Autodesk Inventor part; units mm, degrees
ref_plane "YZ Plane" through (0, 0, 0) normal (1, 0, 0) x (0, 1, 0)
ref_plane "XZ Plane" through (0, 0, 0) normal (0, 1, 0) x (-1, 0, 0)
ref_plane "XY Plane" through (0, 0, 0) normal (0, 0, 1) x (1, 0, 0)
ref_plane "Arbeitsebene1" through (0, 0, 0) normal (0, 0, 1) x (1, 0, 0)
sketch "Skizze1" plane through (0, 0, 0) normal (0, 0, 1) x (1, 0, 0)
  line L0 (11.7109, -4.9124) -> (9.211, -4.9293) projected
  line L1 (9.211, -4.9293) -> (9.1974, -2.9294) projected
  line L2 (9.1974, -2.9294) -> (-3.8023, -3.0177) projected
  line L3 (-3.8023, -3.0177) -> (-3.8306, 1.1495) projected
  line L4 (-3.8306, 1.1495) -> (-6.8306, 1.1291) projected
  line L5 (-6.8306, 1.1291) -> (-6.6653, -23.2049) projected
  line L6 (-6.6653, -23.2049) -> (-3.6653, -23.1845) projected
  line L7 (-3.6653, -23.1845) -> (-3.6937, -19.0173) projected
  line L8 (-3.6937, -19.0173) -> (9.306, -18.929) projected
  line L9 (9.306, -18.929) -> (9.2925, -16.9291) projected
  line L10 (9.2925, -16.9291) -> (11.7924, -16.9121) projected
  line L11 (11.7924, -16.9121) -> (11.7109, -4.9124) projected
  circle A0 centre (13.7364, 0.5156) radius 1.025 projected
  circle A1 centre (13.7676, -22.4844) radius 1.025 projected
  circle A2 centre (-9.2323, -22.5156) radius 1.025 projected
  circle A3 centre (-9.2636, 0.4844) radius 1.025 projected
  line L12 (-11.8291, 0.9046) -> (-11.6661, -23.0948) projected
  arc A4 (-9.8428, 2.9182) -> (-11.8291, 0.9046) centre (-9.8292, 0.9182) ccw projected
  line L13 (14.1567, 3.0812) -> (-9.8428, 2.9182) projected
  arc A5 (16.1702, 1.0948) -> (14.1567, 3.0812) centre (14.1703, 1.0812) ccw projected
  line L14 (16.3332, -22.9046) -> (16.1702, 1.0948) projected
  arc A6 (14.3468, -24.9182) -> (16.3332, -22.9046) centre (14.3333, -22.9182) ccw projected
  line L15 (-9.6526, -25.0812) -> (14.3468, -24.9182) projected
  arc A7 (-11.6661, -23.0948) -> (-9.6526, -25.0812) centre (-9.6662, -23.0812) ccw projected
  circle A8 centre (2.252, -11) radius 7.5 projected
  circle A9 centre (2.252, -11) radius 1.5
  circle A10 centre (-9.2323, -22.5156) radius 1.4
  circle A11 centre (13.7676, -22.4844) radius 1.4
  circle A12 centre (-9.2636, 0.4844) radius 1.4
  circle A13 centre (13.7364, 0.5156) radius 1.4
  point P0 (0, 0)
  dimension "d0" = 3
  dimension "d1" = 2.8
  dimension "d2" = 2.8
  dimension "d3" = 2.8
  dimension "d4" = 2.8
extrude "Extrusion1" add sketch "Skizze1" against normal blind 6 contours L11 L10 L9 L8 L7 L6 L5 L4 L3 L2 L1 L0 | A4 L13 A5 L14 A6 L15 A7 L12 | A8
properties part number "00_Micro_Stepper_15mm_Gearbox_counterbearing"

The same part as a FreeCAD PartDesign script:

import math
import FreeCAD as App
import Part
import Sketcher
Q = App.Units.Quantity

doc = App.newDocument("Part")
body = doc.addObject("PartDesign::Body", "Body")

sketch1 = body.newObject("Sketcher::SketchObject", "Sketch")
sketch1.AttachmentSupport = (doc.getObject("XY_Plane"), [""])
sketch1.MapMode = "FlatFace"
sketch1.addGeometry(Part.ArcOfCircle(Part.Circle(App.Vector(-9.8, 0.9, 0), App.Vector(0, 0, 1), 2), math.radians(90), math.radians(180)), False)
sketch1.addGeometry(Part.LineSegment(App.Vector(-11.8, 0.9, 0), App.Vector(-11.7, -23.1, 0)), False)
sketch1.addGeometry(Part.ArcOfCircle(Part.Circle(App.Vector(-9.7, -23.1, 0), App.Vector(0, 0, 1), 2), math.radians(-180), math.radians(-90)), False)
sketch1.addGeometry(Part.LineSegment(App.Vector(-9.7, -25.1, 0), App.Vector(14.3, -24.9, 0)), False)
sketch1.addGeometry(Part.ArcOfCircle(Part.Circle(App.Vector(14.3, -22.9, 0), App.Vector(0, 0, 1), 2), math.radians(-90), math.radians(0)), False)
sketch1.addGeometry(Part.LineSegment(App.Vector(16.3, -22.9, 0), App.Vector(16.2, 1.1, 0)), False)
sketch1.addGeometry(Part.ArcOfCircle(Part.Circle(App.Vector(14.2, 1.1, 0), App.Vector(0, 0, 1), 2), math.radians(0), math.radians(90)), False)
sketch1.addGeometry(Part.LineSegment(App.Vector(14.2, 3.1, 0), App.Vector(-9.8, 2.9, 0)), False)
sketch1.addGeometry(Part.Circle(App.Vector(-9.2, -22.5, 0), App.Vector(0, 0, 1), 1.4), False)
sketch1.addGeometry(Part.Circle(App.Vector(13.8, -22.5, 0), App.Vector(0, 0, 1), 1.4), False)
sketch1.addGeometry(Part.Circle(App.Vector(-9.3, 0.5, 0), App.Vector(0, 0, 1), 1.4), False)
sketch1.addGeometry(Part.Circle(App.Vector(13.7, 0.5, 0), App.Vector(0, 0, 1), 1.4), False)
sketch1.addGeometry(Part.Circle(App.Vector(2.3, -11, 0), App.Vector(0, 0, 1), 1.5), False)
sketch1.addConstraint(Sketcher.Constraint("Tangent", 0, 2, 1, 1))
sketch1.addConstraint(Sketcher.Constraint("Tangent", 1, 2, 2, 1))
sketch1.addConstraint(Sketcher.Constraint("Tangent", 2, 2, 3, 1))
sketch1.addConstraint(Sketcher.Constraint("Tangent", 3, 2, 4, 1))
sketch1.addConstraint(Sketcher.Constraint("Tangent", 4, 2, 5, 1))
sketch1.addConstraint(Sketcher.Constraint("Tangent", 5, 2, 6, 1))
sketch1.addConstraint(Sketcher.Constraint("Tangent", 6, 2, 7, 1))
sketch1.addConstraint(Sketcher.Constraint("Tangent", 7, 2, 0, 1))
sketch1.addConstraint(Sketcher.Constraint("Equal", 0, 2))
sketch1.addConstraint(Sketcher.Constraint("Equal", 2, 4))
sketch1.addConstraint(Sketcher.Constraint("Equal", 4, 6))
sketch1.addConstraint(Sketcher.Constraint("Equal", 8, 9))
sketch1.addConstraint(Sketcher.Constraint("Equal", 9, 10))
sketch1.addConstraint(Sketcher.Constraint("Equal", 10, 11))
sketch1.addConstraint(Sketcher.Constraint("Perpendicular", 1, 3))
sketch1.addConstraint(Sketcher.Constraint("Perpendicular", 3, 5))
sketch1.addConstraint(Sketcher.Constraint("Perpendicular", 5, 7))
sketch1.addConstraint(Sketcher.Constraint("Equal", 1, 3))
sketch1.addConstraint(Sketcher.Constraint("Diameter", 12, Q("3 mm")))
sketch1.addConstraint(Sketcher.Constraint("Diameter", 8, Q("2.8 mm")))
sketch1.addConstraint(Sketcher.Constraint("Radius", 0, Q("2 mm")))
sketch1.addConstraint(Sketcher.Constraint("Distance", 1, Q("24 mm")))
sketch1.addConstraint(Sketcher.Constraint("DistanceY", 12, 3, -1, 1, Q("11 mm")))
sketch1.addConstraint(Sketcher.Constraint("DistanceX", 8, 3, 9, 3, Q("23 mm")))
sketch1.addConstraint(Sketcher.Constraint("DistanceY", 8, 3, 10, 3, Q("23 mm")))
sketch1.addConstraint(Sketcher.Constraint("DistanceY", 9, 3, 11, 3, Q("23 mm")))
sketch1.addConstraint(Sketcher.Constraint("DistanceX", 10, 3, 11, 3, Q("23 mm")))
sketch1.addConstraint(Sketcher.Constraint("Angle", 1, Q("-89.6109 deg")))
sketch1.addConstraint(Sketcher.Constraint("DistanceX", -1, 1, 12, 3, Q("2.252 mm")))
sketch1.addConstraint(Sketcher.Constraint("DistanceX", 1, 2, -1, 1, Q("11.666 mm")))
sketch1.addConstraint(Sketcher.Constraint("DistanceY", 2, 2, -1, 1, Q("25.081 mm")))
sketch1.addConstraint(Sketcher.Constraint("DistanceX", 2, 3, 8, 3, Q("0.434 mm")))
sketch1.addConstraint(Sketcher.Constraint("DistanceX", 10, 3, 6, 3, Q("23.434 mm")))
sketch1.addConstraint(Sketcher.Constraint("DistanceY", 8, 3, -1, 1, Q("22.5156 mm")))
sketch1.addConstraint(Sketcher.Constraint("DistanceY", 9, 3, -1, 1, Q("22.4844 mm")))
pad1 = body.newObject("PartDesign::Pad", "Pad")
pad1.Profile = sketch1
pad1.Length = 6
pad1.Reversed = True

doc.recompute()
